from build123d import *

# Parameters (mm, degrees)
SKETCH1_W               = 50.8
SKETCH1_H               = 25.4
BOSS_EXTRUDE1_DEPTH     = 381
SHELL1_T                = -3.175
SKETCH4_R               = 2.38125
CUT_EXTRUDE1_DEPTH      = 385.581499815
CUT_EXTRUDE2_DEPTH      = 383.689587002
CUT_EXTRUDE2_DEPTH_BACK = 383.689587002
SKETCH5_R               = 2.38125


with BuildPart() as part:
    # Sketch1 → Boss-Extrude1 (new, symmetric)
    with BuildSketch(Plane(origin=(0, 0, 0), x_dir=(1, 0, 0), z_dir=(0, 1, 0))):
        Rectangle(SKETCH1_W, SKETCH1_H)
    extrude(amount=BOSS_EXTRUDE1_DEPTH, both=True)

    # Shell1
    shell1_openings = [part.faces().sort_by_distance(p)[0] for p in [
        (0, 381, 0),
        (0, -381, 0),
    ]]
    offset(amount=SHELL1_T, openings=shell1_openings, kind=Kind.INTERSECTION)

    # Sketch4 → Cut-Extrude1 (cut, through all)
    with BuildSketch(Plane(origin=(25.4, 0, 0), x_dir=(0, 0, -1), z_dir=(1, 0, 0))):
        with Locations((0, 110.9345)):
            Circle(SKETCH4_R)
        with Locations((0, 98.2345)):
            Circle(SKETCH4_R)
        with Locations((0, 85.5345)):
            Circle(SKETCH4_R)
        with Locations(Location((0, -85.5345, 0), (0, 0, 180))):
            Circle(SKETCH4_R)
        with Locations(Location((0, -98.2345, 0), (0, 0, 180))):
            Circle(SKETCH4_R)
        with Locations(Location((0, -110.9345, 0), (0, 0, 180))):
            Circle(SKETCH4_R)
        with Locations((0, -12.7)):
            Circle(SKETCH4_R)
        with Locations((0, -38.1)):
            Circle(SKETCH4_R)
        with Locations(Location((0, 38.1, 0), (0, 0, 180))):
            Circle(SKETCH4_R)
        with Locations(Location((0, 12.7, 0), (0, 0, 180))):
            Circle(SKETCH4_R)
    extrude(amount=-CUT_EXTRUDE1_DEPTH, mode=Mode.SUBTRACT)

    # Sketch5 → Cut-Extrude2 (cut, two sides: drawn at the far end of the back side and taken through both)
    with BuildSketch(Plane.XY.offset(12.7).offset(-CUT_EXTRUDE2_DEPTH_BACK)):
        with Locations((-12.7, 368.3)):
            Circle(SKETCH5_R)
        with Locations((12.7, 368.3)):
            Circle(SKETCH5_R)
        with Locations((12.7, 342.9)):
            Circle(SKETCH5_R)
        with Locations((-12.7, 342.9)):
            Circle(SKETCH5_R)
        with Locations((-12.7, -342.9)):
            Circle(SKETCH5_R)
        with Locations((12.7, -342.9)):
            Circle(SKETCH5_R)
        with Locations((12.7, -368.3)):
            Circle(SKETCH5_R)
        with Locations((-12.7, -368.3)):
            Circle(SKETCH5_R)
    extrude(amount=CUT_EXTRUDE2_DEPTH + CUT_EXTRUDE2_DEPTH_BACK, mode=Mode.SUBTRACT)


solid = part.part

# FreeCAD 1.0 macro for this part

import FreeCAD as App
import Part
import Sketcher

V = App.Vector
Q = App.Units.Quantity


def faces_at(feature, points):
    """Names of the faces that lie closest to the given points."""
    faces = feature.Shape.Faces
    near = lambda p: min(range(len(faces)), key=lambda i: faces[i].distToShape(Part.Vertex(*p))[0])
    return sorted({f"Face{near(p) + 1}" for p in points})

doc = App.newDocument("Part")
body = doc.addObject("PartDesign::Body", "Body")

sketch1 = body.newObject("Sketcher::SketchObject", "Sketch")
sketch1.AttachmentSupport = (doc.getObject("XZ_Plane"), [""])
sketch1.MapMode = "FlatFace"
sketch1.addGeometry([
    Part.LineSegment(V(-25.4, -12.7, 0), V(-25.4, 12.7, 0)),
    Part.LineSegment(V(-25.4, 12.7, 0), V(25.4, 12.7, 0)),
    Part.LineSegment(V(25.4, 12.7, 0), V(25.4, -12.7, 0)),
    Part.LineSegment(V(25.4, -12.7, 0), V(-25.4, -12.7, 0)),
], False)
sketch1.addConstraint([
    Sketcher.Constraint("Coincident", 0, 2, 1, 1),
    Sketcher.Constraint("Coincident", 1, 2, 2, 1),
    Sketcher.Constraint("Coincident", 2, 2, 3, 1),
    Sketcher.Constraint("Coincident", 3, 2, 0, 1),
    Sketcher.Constraint("Vertical", 0),
    Sketcher.Constraint("Horizontal", 1),
    Sketcher.Constraint("Vertical", 2),
    Sketcher.Constraint("Horizontal", 3),
    Sketcher.Constraint("Symmetric", 0, 2, 2, 2, -1, 1),
    Sketcher.Constraint("DistanceX", 1, 1, 1, 2, Q("2 in")),
    Sketcher.Constraint("DistanceY", 0, 1, 0, 2, Q("1 in")),
])
pad1 = body.newObject("PartDesign::Pad", "Pad")
pad1.Profile = sketch1
pad1.Length = Q("30 in")
pad1.Midplane = True
doc.recompute()

thickness = body.newObject("PartDesign::Thickness", "Thickness")
thickness.Base = (pad1, faces_at(pad1, [(0, 381, 0), (0, -381, 0)]))
thickness.Value = Q("0.125 in")
thickness.Reversed = True
thickness.Join = "Intersection"

sketch2 = body.newObject("Sketcher::SketchObject", "Sketch001")
sketch2.AttachmentSupport = (doc.getObject("YZ_Plane"), [""])
sketch2.MapMode = "FlatFace"
sketch2.AttachmentOffset = App.Placement(V(0, 0, 1 * 25.4), App.Rotation())
sketch2.addGeometry([
    Part.Circle(V(110.9345, 0, 0), V(0, 0, 1), 2.38125),
    Part.Circle(V(98.2345, 0, 0), V(0, 0, 1), 2.38125),
    Part.Circle(V(85.5345, 0, 0), V(0, 0, 1), 2.38125),
    Part.Circle(V(-85.5345, 0, 0), V(0, 0, 1), 2.38125),
    Part.Circle(V(-98.2345, 0, 0), V(0, 0, 1), 2.38125),
    Part.Circle(V(-110.9345, 0, 0), V(0, 0, 1), 2.38125),
    Part.Circle(V(-12.7, 0, 0), V(0, 0, 1), 2.38125),
    Part.Circle(V(-38.1, 0, 0), V(0, 0, 1), 2.38125),
    Part.Circle(V(38.1, 0, 0), V(0, 0, 1), 2.38125),
    Part.Circle(V(12.7, 0, 0), V(0, 0, 1), 2.38125),
], False)
sketch2.addConstraint([
    Sketcher.Constraint("Equal", 0, 1),
    Sketcher.Constraint("Equal", 1, 2),
    Sketcher.Constraint("Equal", 2, 3),
    Sketcher.Constraint("Equal", 3, 4),
    Sketcher.Constraint("Equal", 4, 5),
    Sketcher.Constraint("Equal", 5, 6),
    Sketcher.Constraint("Equal", 6, 7),
    Sketcher.Constraint("Equal", 7, 8),
    Sketcher.Constraint("Equal", 8, 9),
    Sketcher.Constraint("Symmetric", 2, 3, 3, 3, -1, 1),
    Sketcher.Constraint("Symmetric", 1, 3, 4, 3, -1, 1),
    Sketcher.Constraint("Symmetric", 0, 3, 5, 3, -1, 1),
    Sketcher.Constraint("Symmetric", 7, 3, 8, 3, -1, 1),
    Sketcher.Constraint("Symmetric", 6, 3, 9, 3, -1, 1),
    Sketcher.Constraint("PointOnObject", 0, 3, -1),
    Sketcher.Constraint("PointOnObject", 1, 3, -1),
    Sketcher.Constraint("PointOnObject", 2, 3, -1),
    Sketcher.Constraint("PointOnObject", 6, 3, -1),
    Sketcher.Constraint("PointOnObject", 7, 3, -1),
    Sketcher.Constraint("Diameter", 0, Q("0.1875 in")),
    Sketcher.Constraint("DistanceX", 2, 3, 0, 3, Q("1 in")),
    Sketcher.Constraint("DistanceX", 7, 3, 6, 3, Q("1 in")),
    Sketcher.Constraint("DistanceX", 6, 3, 8, 3, Q("2 in")),
    Sketcher.Constraint("DistanceX", 1, 3, 0, 3, Q("0.5 in")),
    Sketcher.Constraint("DistanceX", 3, 3, 2, 3, Q("6.735 in")),
])
pocket1 = body.newObject("PartDesign::Pocket", "Pocket")
pocket1.Profile = sketch2
pocket1.Type = "ThroughAll"

sketch3 = body.newObject("Sketcher::SketchObject", "Sketch002")
sketch3.AttachmentSupport = (doc.getObject("XY_Plane"), [""])
sketch3.MapMode = "FlatFace"
sketch3.AttachmentOffset = App.Placement(V(0, 0, 0.5 * 25.4), App.Rotation())
sketch3.addGeometry([
    Part.Circle(V(-12.7, 368.3, 0), V(0, 0, 1), 2.38125),
    Part.Circle(V(12.7, 368.3, 0), V(0, 0, 1), 2.38125),
    Part.Circle(V(12.7, 342.9, 0), V(0, 0, 1), 2.38125),
    Part.Circle(V(-12.7, 342.9, 0), V(0, 0, 1), 2.38125),
    Part.Circle(V(-12.7, -342.9, 0), V(0, 0, 1), 2.38125),
    Part.Circle(V(12.7, -342.9, 0), V(0, 0, 1), 2.38125),
    Part.Circle(V(12.7, -368.3, 0), V(0, 0, 1), 2.38125),
    Part.Circle(V(-12.7, -368.3, 0), V(0, 0, 1), 2.38125),
], False)
sketch3.addConstraint([
    Sketcher.Constraint("Equal", 0, 1),
    Sketcher.Constraint("Equal", 1, 2),
    Sketcher.Constraint("Equal", 2, 3),
    Sketcher.Constraint("Equal", 3, 4),
    Sketcher.Constraint("Equal", 4, 5),
    Sketcher.Constraint("Equal", 5, 6),
    Sketcher.Constraint("Equal", 6, 7),
    Sketcher.Constraint("Symmetric", 2, 3, 4, 3, -1, 1),
    Sketcher.Constraint("Symmetric", 3, 3, 5, 3, -1, 1),
    Sketcher.Constraint("Symmetric", 0, 3, 6, 3, -1, 1),
    Sketcher.Constraint("Symmetric", 1, 3, 7, 3, -1, 1),
    Sketcher.Constraint("Symmetric", 0, 3, 1, 3, -2),
    Sketcher.Constraint("Symmetric", 2, 3, 3, 3, -2),
    Sketcher.Constraint("Vertical", 1, 3, 2, 3),
    Sketcher.Constraint("Diameter", 0, Q("0.1875 in")),
    Sketcher.Constraint("DistanceX", 0, 3, 1, 3, Q("1 in")),
    Sketcher.Constraint("DistanceY", 2, 3, 1, 3, Q("1 in")),
    Sketcher.Constraint("DistanceY", 4, 3, 3, 3, Q("27 in")),
])
pocket2 = body.newObject("PartDesign::Pocket", "Pocket001")
pocket2.Profile = sketch3
pocket2.Type = "ThroughAll"
pocket2.Midplane = True

doc.recompute()
